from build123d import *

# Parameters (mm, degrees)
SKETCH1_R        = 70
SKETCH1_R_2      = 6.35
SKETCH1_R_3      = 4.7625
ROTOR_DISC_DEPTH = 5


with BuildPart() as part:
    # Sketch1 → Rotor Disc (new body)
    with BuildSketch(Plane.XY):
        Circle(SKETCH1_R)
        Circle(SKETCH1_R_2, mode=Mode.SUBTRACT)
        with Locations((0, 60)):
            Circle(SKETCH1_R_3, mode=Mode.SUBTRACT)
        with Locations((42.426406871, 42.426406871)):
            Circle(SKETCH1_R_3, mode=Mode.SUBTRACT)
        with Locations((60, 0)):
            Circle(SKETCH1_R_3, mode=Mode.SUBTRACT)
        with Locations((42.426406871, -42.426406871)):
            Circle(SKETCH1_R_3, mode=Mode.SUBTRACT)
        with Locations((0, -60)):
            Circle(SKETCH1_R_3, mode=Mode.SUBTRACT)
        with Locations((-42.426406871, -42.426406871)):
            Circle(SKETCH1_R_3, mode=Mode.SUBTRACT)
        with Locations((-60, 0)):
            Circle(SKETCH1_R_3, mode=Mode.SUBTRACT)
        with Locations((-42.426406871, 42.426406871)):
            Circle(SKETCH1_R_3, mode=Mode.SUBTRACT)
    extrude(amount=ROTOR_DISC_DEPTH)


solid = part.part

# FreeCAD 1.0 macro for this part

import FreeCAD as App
import Part
import Sketcher

V = App.Vector
Q = App.Units.Quantity

doc = App.newDocument("Part")
body = doc.addObject("PartDesign::Body", "Body")

sketch1 = body.newObject("Sketcher::SketchObject", "Sketch")
sketch1.AttachmentSupport = (doc.getObject("XY_Plane"), [""])
sketch1.MapMode = "FlatFace"
sketch1.addGeometry(Part.Circle(V(0, 0, 0), V(0, 0, 1), 70), False)
sketch1.addGeometry(Part.Circle(V(-42.426407, -42.426407, 0), V(0, 0, 1), 4.7625), False)
sketch1.addGeometry(Part.Circle(V(0, -60, 0), V(0, 0, 1), 4.7625), False)
sketch1.addGeometry(Part.Circle(V(42.426407, -42.426407, 0), V(0, 0, 1), 4.7625), False)
sketch1.addGeometry(Part.Circle(V(-60, 0, 0), V(0, 0, 1), 4.7625), False)
sketch1.addGeometry(Part.Circle(V(-42.426407, 42.426407, 0), V(0, 0, 1), 4.7625), False)
sketch1.addGeometry(Part.Circle(V(0, 0, 0), V(0, 0, 1), 6.35), False)
sketch1.addGeometry(Part.Circle(V(60, 0, 0), V(0, 0, 1), 4.7625), False)
sketch1.addGeometry(Part.Circle(V(0, 60, 0), V(0, 0, 1), 4.7625), False)
sketch1.addGeometry(Part.Circle(V(42.426407, 42.426407, 0), V(0, 0, 1), 4.7625), False)
sketch1.addConstraint(Sketcher.Constraint("Coincident", 0, 3, -1, 1))
sketch1.addConstraint(Sketcher.Constraint("Coincident", 6, 3, -1, 1))
sketch1.addConstraint(Sketcher.Constraint("Equal", 1, 2))
sketch1.addConstraint(Sketcher.Constraint("Equal", 2, 3))
sketch1.addConstraint(Sketcher.Constraint("Equal", 3, 4))
sketch1.addConstraint(Sketcher.Constraint("Equal", 4, 5))
sketch1.addConstraint(Sketcher.Constraint("Equal", 5, 7))
sketch1.addConstraint(Sketcher.Constraint("Equal", 7, 8))
sketch1.addConstraint(Sketcher.Constraint("Equal", 8, 9))
sketch1.addConstraint(Sketcher.Constraint("Symmetric", 3, 3, 5, 3, -1, 1))
sketch1.addConstraint(Sketcher.Constraint("Symmetric", 4, 3, 7, 3, -1, 1))
sketch1.addConstraint(Sketcher.Constraint("Symmetric", 2, 3, 8, 3, -1, 1))
sketch1.addConstraint(Sketcher.Constraint("Symmetric", 1, 3, 9, 3, -1, 1))
sketch1.addConstraint(Sketcher.Constraint("Symmetric", 1, 3, 3, 3, -2))
sketch1.addConstraint(Sketcher.Constraint("PointOnObject", 2, 3, -2))
sketch1.addConstraint(Sketcher.Constraint("PointOnObject", 4, 3, -1))
sketch1.addConstraint(Sketcher.Constraint("Diameter", 0, Q("140 mm")))
sketch1.addConstraint(Sketcher.Constraint("Diameter", 6, Q("12.7 mm")))
sketch1.addConstraint(Sketcher.Constraint("Diameter", 1, Q("9.525 mm")))
sketch1.addConstraint(Sketcher.Constraint("DistanceY", 2, 3, -1, 1, Q("60 mm")))
sketch1.addConstraint(Sketcher.Constraint("DistanceX", 4, 3, -1, 1, Q("60 mm")))
sketch1.addConstraint(Sketcher.Constraint("DistanceX", 1, 3, -1, 1, Q("42.426407 mm")))
sketch1.addConstraint(Sketcher.Constraint("DistanceY", 1, 3, -1, 1, Q("42.426407 mm")))
pad1 = body.newObject("PartDesign::Pad", "Pad")
pad1.Profile = sketch1
pad1.Length = 5

doc.recompute()
